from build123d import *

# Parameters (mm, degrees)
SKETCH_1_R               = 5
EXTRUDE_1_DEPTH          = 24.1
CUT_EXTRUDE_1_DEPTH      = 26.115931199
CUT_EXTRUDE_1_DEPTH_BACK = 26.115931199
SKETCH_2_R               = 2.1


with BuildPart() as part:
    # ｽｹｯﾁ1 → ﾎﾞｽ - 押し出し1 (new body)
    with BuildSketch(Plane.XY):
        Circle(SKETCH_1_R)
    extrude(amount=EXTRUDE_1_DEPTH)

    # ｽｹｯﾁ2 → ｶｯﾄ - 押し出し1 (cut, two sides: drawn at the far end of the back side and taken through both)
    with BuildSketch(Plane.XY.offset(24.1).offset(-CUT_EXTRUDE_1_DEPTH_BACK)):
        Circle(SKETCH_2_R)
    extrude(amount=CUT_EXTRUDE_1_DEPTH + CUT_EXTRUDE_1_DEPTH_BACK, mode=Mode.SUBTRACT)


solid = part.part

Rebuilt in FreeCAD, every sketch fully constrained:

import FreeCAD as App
import Part
import Sketcher

doc = App.newDocument("Part")
params = doc.addObject("Spreadsheet::Sheet", "Params")
for row, (alias, value) in enumerate([
    ("sketch1_diameter", "10 mm"),
    ("pad1_length", "24.1 mm"),
    ("sketch2_diameter", "4.2 mm"),
], start=1):
    params.set(f"A{row}", alias)
    params.set(f"B{row}", "=" + value)
    params.setAlias(f"B{row}", alias)

body = doc.addObject("PartDesign::Body", "Body")

sketch1 = body.newObject("Sketcher::SketchObject", "Sketch")
sketch1.AttachmentSupport = (doc.getObject("XY_Plane"), [""])
sketch1.MapMode = "FlatFace"
sketch1.addGeometry(Part.Circle(App.Vector(0, 0, 0), App.Vector(0, 0, 1), 5), False)
sketch1.addConstraint(Sketcher.Constraint("Coincident", 0, 3, -1, 1))
sketch1.addConstraint(Sketcher.Constraint("Diameter", 0, 10.0))
sketch1.setExpression("Constraints[1]", "Params.sketch1_diameter")
pad1 = body.newObject("PartDesign::Pad", "Pad")
pad1.Profile = sketch1
pad1.setExpression("Length", "Params.pad1_length")

sketch2 = body.newObject("Sketcher::SketchObject", "Sketch001")
sketch2.AttachmentSupport = (doc.getObject("XY_Plane"), [""])
sketch2.MapMode = "FlatFace"
sketch2.AttachmentOffset = App.Placement(App.Vector(0, 0, 24.1), App.Rotation())
sketch2.addGeometry(Part.Circle(App.Vector(0, 0, 0), App.Vector(0, 0, 1), 2.1), False)
sketch2.addConstraint(Sketcher.Constraint("Coincident", 0, 3, -1, 1))
sketch2.addConstraint(Sketcher.Constraint("Diameter", 0, 4.2))
sketch2.setExpression("Constraints[1]", "Params.sketch2_diameter")
pocket1 = body.newObject("PartDesign::Pocket", "Pocket")
pocket1.Profile = sketch2
pocket1.Type = "ThroughAll"
pocket1.Midplane = True

doc.recompute()
